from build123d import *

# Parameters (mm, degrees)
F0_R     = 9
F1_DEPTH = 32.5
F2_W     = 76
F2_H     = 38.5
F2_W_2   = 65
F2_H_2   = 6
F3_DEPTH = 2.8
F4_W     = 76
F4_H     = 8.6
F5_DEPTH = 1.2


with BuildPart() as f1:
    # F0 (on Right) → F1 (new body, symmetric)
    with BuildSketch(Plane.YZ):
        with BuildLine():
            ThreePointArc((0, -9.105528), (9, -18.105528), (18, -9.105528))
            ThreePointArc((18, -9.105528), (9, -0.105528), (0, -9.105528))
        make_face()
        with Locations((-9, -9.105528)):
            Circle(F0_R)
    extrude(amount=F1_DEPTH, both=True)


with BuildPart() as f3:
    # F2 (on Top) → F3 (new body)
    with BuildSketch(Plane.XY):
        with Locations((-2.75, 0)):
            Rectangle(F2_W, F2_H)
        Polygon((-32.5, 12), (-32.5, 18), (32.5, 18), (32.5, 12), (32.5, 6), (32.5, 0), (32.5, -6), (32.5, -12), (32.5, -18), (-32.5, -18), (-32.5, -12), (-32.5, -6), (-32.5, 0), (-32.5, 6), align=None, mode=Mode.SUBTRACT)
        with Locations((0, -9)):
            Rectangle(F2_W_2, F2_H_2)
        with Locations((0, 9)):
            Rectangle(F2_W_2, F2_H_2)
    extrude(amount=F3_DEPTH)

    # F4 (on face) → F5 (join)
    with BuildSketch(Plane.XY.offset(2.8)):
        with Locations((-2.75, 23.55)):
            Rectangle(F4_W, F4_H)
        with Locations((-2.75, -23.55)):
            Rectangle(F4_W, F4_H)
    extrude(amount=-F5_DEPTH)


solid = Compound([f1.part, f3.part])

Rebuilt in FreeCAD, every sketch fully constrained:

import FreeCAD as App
import Part
import Sketcher
Q = App.Units.Quantity

doc = App.newDocument("Part")
params = doc.addObject("Spreadsheet::Sheet", "Params")
for row, (alias, value) in enumerate([
    ("sketch1_diameter", "18 mm"),
    ("pad1_length", "65 mm"),
    ("sketch2_width", "76 mm"),
    ("sketch2_width2", "65 mm"),
    ("sketch2_height", "6 mm"),
    ("sketch2_height2", "12 mm"),
    ("sketch2_height3", "38.5 mm"),
    ("pad2_length", "2.8 mm"),
    ("sketch3_width", "76 mm"),
    ("sketch3_height", "8.6 mm"),
    ("pad3_length", "1.2 mm"),
], start=1):
    params.set(f"A{row}", alias)
    params.set(f"B{row}", "=" + value)
    params.setAlias(f"B{row}", alias)

body = doc.addObject("PartDesign::Body", "Body")
body.AllowCompound = True

sketch1 = body.newObject("Sketcher::SketchObject", "Sketch")
sketch1.AttachmentSupport = (doc.getObject("YZ_Plane"), [""])
sketch1.MapMode = "FlatFace"
sketch1.addGeometry([
    Part.Circle(App.Vector(9, -9, 0), App.Vector(0, 0, 1), 9),
    Part.Circle(App.Vector(-9, -9, 0), App.Vector(0, 0, 1), 9),
], False)
sketch1.addConstraint([
    Sketcher.Constraint("Equal", 0, 1),
    Sketcher.Constraint("Symmetric", 0, 3, 1, 3, -2),
    Sketcher.Constraint("Diameter", 0, Q("18 mm")),
    Sketcher.Constraint("DistanceX", -1, 1, 0, 3, Q("9 mm")),
    Sketcher.Constraint("DistanceY", 0, 3, -1, 1, Q("9.105528 mm")),
])
sketch1.setExpression("Constraints[2]", "Params.sketch1_diameter")
pad1 = body.newObject("PartDesign::Pad", "Pad")
pad1.Profile = sketch1
pad1.setExpression("Length", "Params.pad1_length")
pad1.Midplane = True
body2 = doc.addObject("PartDesign::Body", "Body001")

sketch2 = body2.newObject("Sketcher::SketchObject", "Sketch001")
sketch2.AttachmentSupport = (doc.getObject("XY_Plane001"), [""])
sketch2.MapMode = "FlatFace"
sketch2.addGeometry([
    Part.LineSegment(App.Vector(-41, 19, 0), App.Vector(-41, -19, 0)),
    Part.LineSegment(App.Vector(-41, -19, 0), App.Vector(35, -19, 0)),
    Part.LineSegment(App.Vector(35, -19, 0), App.Vector(35, 19, 0)),
    Part.LineSegment(App.Vector(35, 19, 0), App.Vector(-41, 19, 0)),
    Part.LineSegment(App.Vector(-32, -18, 0), App.Vector(-32, -12, 0)),
    Part.LineSegment(App.Vector(-32, -12, 0), App.Vector(32, -12, 0)),
    Part.LineSegment(App.Vector(32, -12, 0), App.Vector(32, -18, 0)),
    Part.LineSegment(App.Vector(32, -18, 0), App.Vector(-32, -18, 0)),
    Part.LineSegment(App.Vector(-32, -6, 0), App.Vector(-32, 6, 0)),
    Part.LineSegment(App.Vector(-32, 6, 0), App.Vector(32, 6, 0)),
    Part.LineSegment(App.Vector(32, 6, 0), App.Vector(32, -6, 0)),
    Part.LineSegment(App.Vector(32, -6, 0), App.Vector(-32, -6, 0)),
    Part.LineSegment(App.Vector(-32, 12, 0), App.Vector(-32, 18, 0)),
    Part.LineSegment(App.Vector(-32, 18, 0), App.Vector(32, 18, 0)),
    Part.LineSegment(App.Vector(32, 18, 0), App.Vector(32, 12, 0)),
    Part.LineSegment(App.Vector(32, 12, 0), App.Vector(-32, 12, 0)),
], False)
sketch2.addConstraint([
    Sketcher.Constraint("Coincident", 0, 2, 1, 1),
    Sketcher.Constraint("Coincident", 1, 2, 2, 1),
    Sketcher.Constraint("Coincident", 2, 2, 3, 1),
    Sketcher.Constraint("Coincident", 3, 2, 0, 1),
    Sketcher.Constraint("Coincident", 4, 2, 5, 1),
    Sketcher.Constraint("Coincident", 5, 2, 6, 1),
    Sketcher.Constraint("Coincident", 6, 2, 7, 1),
    Sketcher.Constraint("Coincident", 7, 2, 4, 1),
    Sketcher.Constraint("Coincident", 8, 2, 9, 1),
    Sketcher.Constraint("Coincident", 9, 2, 10, 1),
    Sketcher.Constraint("Coincident", 10, 2, 11, 1),
    Sketcher.Constraint("Coincident", 11, 2, 8, 1),
    Sketcher.Constraint("Coincident", 12, 2, 13, 1),
    Sketcher.Constraint("Coincident", 13, 2, 14, 1),
    Sketcher.Constraint("Coincident", 14, 2, 15, 1),
    Sketcher.Constraint("Coincident", 15, 2, 12, 1),
    Sketcher.Constraint("Vertical", 0),
    Sketcher.Constraint("Horizontal", 1),
    Sketcher.Constraint("Vertical", 2),
    Sketcher.Constraint("Horizontal", 3),
    Sketcher.Constraint("Vertical", 4),
    Sketcher.Constraint("Horizontal", 5),
    Sketcher.Constraint("Vertical", 6),
    Sketcher.Constraint("Horizontal", 7),
    Sketcher.Constraint("Vertical", 8),
    Sketcher.Constraint("Horizontal", 9),
    Sketcher.Constraint("Vertical", 10),
    Sketcher.Constraint("Horizontal", 11),
    Sketcher.Constraint("Vertical", 12),
    Sketcher.Constraint("Horizontal", 13),
    Sketcher.Constraint("Vertical", 14),
    Sketcher.Constraint("Horizontal", 15),
    Sketcher.Constraint("Symmetric", 8, 2, 10, 2, -1, 1),
    Sketcher.Constraint("Symmetric", 6, 2, 12, 2, -1, 1),
    Sketcher.Constraint("Symmetric", 4, 2, 14, 2, -1, 1),
    Sketcher.Constraint("Vertical", 7, 2, 8, 2),
    Sketcher.Constraint("Vertical", 6, 2, 9, 2),
    Sketcher.Constraint("DistanceX", 1, 1, 1, 2, Q("76 mm")),
    Sketcher.Constraint("DistanceX", 5, 1, 5, 2, Q("65 mm")),
    Sketcher.Constraint("DistanceY", 4, 1, 4, 2, Q("6 mm")),
    Sketcher.Constraint("DistanceY", 8, 1, 8, 2, Q("12 mm")),
    Sketcher.Constraint("DistanceY", 0, 2, 0, 1, Q("38.5 mm")),
    Sketcher.Constraint("DistanceY", 4, 2, -1, 1, Q("12 mm")),
    Sketcher.Constraint("DistanceX", 0, 2, -1, 1, Q("40.75 mm")),
    Sketcher.Constraint("DistanceY", 0, 2, -1, 1, Q("19.25 mm")),
])
sketch2.setExpression("Constraints[37]", "Params.sketch2_width")
sketch2.setExpression("Constraints[38]", "Params.sketch2_width2")
sketch2.setExpression("Constraints[39]", "Params.sketch2_height")
sketch2.setExpression("Constraints[40]", "Params.sketch2_height2")
sketch2.setExpression("Constraints[41]", "Params.sketch2_height3")
pad2 = body2.newObject("PartDesign::Pad", "Pad001")
pad2.Profile = sketch2
pad2.setExpression("Length", "Params.pad2_length")

sketch3 = body2.newObject("Sketcher::SketchObject", "Sketch002")
sketch3.AttachmentSupport = (doc.getObject("XY_Plane001"), [""])
sketch3.MapMode = "FlatFace"
sketch3.AttachmentOffset = App.Placement(App.Vector(0, 0, 2.8), App.Rotation())
sketch3.addGeometry([
    Part.LineSegment(App.Vector(-41, 28, 0), App.Vector(-41, 19, 0)),
    Part.LineSegment(App.Vector(-41, 19, 0), App.Vector(35, 19, 0)),
    Part.LineSegment(App.Vector(35, 19, 0), App.Vector(35, 28, 0)),
    Part.LineSegment(App.Vector(35, 28, 0), App.Vector(-41, 28, 0)),
    Part.LineSegment(App.Vector(-41, -19, 0), App.Vector(-41, -28, 0)),
    Part.LineSegment(App.Vector(-41, -28, 0), App.Vector(35, -28, 0)),
    Part.LineSegment(App.Vector(35, -28, 0), App.Vector(35, -19, 0)),
    Part.LineSegment(App.Vector(35, -19, 0), App.Vector(-41, -19, 0)),
], False)
sketch3.addConstraint([
    Sketcher.Constraint("Coincident", 0, 2, 1, 1),
    Sketcher.Constraint("Coincident", 1, 2, 2, 1),
    Sketcher.Constraint("Coincident", 2, 2, 3, 1),
    Sketcher.Constraint("Coincident", 3, 2, 0, 1),
    Sketcher.Constraint("Coincident", 4, 2, 5, 1),
    Sketcher.Constraint("Coincident", 5, 2, 6, 1),
    Sketcher.Constraint("Coincident", 6, 2, 7, 1),
    Sketcher.Constraint("Coincident", 7, 2, 4, 1),
    Sketcher.Constraint("Vertical", 0),
    Sketcher.Constraint("Horizontal", 1),
    Sketcher.Constraint("Vertical", 2),
    Sketcher.Constraint("Horizontal", 3),
    Sketcher.Constraint("Vertical", 4),
    Sketcher.Constraint("Horizontal", 5),
    Sketcher.Constraint("Vertical", 6),
    Sketcher.Constraint("Horizontal", 7),
    Sketcher.Constraint("Symmetric", 3, 2, 4, 2, -1),
    Sketcher.Constraint("Symmetric", 1, 2, 6, 2, -1),
    Sketcher.Constraint("DistanceX", 1, 1, 1, 2, Q("76 mm")),
    Sketcher.Constraint("DistanceY", 0, 2, 0, 1, Q("8.6 mm")),
    Sketcher.Constraint("DistanceY", 4, 2, 0, 2, Q("47.1 mm")),
    Sketcher.Constraint("DistanceX", 0, 2, -1, 1, Q("40.75 mm")),
])
sketch3.setExpression("Constraints[18]", "Params.sketch3_width")
sketch3.setExpression("Constraints[19]", "Params.sketch3_height")
pad3 = body2.newObject("PartDesign::Pad", "Pad002")
pad3.Profile = sketch3
pad3.setExpression("Length", "Params.pad3_length")
pad3.Reversed = True

doc.recompute()
